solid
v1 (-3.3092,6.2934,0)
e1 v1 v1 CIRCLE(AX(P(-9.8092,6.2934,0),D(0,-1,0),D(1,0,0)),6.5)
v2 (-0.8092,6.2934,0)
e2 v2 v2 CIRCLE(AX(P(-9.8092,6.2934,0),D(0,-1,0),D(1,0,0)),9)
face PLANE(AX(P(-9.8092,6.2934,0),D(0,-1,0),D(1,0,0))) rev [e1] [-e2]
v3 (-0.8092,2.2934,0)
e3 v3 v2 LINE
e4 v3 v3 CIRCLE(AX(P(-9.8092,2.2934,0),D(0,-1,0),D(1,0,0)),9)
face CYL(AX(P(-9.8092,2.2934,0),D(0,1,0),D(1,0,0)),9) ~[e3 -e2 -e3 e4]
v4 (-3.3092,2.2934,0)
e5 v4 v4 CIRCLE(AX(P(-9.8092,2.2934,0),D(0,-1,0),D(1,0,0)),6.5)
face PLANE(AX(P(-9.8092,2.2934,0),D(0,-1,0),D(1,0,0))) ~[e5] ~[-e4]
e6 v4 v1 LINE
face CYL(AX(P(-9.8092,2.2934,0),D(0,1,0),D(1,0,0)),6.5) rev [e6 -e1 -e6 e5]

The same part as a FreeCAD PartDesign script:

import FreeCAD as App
import Part
import Sketcher
Q = App.Units.Quantity


def add_polygon(sketch, points):
    """Adds a closed chain of lines whose ends are joined by coincident constraints."""
    first, n = sketch.GeometryCount, len(points)
    for a, b in zip(points, points[1:] + points[:1]):
        sketch.addGeometry(Part.LineSegment(App.Vector(*a, 0), App.Vector(*b, 0)), False)
    for i in range(n):
        sketch.addConstraint(Sketcher.Constraint("Coincident", first + i, 2, first + (i + 1) % n, 1))

doc = App.newDocument("Part")
body = doc.addObject("PartDesign::Body", "Body")

sketch1 = doc.addObject("Sketcher::SketchObject", "Sketch")
body.addObject(sketch1)
sketch1.AttachmentSupport = (doc.XY_Plane, [""])
sketch1.MapMode = "FlatFace"
add_polygon(sketch1, [(-3.3092, 6.2934), (-3.3092, 2.2934), (-0.8092, 2.2934), (-0.8092, 6.2934)])
sketch1.addGeometry(Part.LineSegment(App.Vector(-9.8092, 6.2934, 0), App.Vector(-9.8092, 2.2934, 0)), True)
sketch1.addConstraint([
    Sketcher.Constraint("Vertical", 0),
    Sketcher.Constraint("Horizontal", 1),
    Sketcher.Constraint("Vertical", 2),
    Sketcher.Constraint("Horizontal", 3),
    Sketcher.Constraint("Vertical", 4),
    Sketcher.Constraint("Horizontal", 3, 2, 4, 1),
    Sketcher.Constraint("Horizontal", 1, 2, 4, 2),
    Sketcher.Constraint("DistanceX", 4, 1, 2, 2, Q("9 mm")),
    Sketcher.Constraint("DistanceY", 0, 2, 0, 1, Q("4 mm")),
    Sketcher.Constraint("DistanceX", 1, 1, 1, 2, Q("2.5 mm")),
    Sketcher.Constraint("DistanceX", 0, 2, -1, 1, Q("3.3092 mm")),
    Sketcher.Constraint("DistanceY", -1, 1, 0, 2, Q("2.2934 mm")),
])
revolution = doc.addObject("PartDesign::Revolution", "Revolution")
body.addObject(revolution)
revolution.Profile = sketch1
revolution.ReferenceAxis = (sketch1, ["Axis0"])
revolution.Angle = 360

doc.recompute()
